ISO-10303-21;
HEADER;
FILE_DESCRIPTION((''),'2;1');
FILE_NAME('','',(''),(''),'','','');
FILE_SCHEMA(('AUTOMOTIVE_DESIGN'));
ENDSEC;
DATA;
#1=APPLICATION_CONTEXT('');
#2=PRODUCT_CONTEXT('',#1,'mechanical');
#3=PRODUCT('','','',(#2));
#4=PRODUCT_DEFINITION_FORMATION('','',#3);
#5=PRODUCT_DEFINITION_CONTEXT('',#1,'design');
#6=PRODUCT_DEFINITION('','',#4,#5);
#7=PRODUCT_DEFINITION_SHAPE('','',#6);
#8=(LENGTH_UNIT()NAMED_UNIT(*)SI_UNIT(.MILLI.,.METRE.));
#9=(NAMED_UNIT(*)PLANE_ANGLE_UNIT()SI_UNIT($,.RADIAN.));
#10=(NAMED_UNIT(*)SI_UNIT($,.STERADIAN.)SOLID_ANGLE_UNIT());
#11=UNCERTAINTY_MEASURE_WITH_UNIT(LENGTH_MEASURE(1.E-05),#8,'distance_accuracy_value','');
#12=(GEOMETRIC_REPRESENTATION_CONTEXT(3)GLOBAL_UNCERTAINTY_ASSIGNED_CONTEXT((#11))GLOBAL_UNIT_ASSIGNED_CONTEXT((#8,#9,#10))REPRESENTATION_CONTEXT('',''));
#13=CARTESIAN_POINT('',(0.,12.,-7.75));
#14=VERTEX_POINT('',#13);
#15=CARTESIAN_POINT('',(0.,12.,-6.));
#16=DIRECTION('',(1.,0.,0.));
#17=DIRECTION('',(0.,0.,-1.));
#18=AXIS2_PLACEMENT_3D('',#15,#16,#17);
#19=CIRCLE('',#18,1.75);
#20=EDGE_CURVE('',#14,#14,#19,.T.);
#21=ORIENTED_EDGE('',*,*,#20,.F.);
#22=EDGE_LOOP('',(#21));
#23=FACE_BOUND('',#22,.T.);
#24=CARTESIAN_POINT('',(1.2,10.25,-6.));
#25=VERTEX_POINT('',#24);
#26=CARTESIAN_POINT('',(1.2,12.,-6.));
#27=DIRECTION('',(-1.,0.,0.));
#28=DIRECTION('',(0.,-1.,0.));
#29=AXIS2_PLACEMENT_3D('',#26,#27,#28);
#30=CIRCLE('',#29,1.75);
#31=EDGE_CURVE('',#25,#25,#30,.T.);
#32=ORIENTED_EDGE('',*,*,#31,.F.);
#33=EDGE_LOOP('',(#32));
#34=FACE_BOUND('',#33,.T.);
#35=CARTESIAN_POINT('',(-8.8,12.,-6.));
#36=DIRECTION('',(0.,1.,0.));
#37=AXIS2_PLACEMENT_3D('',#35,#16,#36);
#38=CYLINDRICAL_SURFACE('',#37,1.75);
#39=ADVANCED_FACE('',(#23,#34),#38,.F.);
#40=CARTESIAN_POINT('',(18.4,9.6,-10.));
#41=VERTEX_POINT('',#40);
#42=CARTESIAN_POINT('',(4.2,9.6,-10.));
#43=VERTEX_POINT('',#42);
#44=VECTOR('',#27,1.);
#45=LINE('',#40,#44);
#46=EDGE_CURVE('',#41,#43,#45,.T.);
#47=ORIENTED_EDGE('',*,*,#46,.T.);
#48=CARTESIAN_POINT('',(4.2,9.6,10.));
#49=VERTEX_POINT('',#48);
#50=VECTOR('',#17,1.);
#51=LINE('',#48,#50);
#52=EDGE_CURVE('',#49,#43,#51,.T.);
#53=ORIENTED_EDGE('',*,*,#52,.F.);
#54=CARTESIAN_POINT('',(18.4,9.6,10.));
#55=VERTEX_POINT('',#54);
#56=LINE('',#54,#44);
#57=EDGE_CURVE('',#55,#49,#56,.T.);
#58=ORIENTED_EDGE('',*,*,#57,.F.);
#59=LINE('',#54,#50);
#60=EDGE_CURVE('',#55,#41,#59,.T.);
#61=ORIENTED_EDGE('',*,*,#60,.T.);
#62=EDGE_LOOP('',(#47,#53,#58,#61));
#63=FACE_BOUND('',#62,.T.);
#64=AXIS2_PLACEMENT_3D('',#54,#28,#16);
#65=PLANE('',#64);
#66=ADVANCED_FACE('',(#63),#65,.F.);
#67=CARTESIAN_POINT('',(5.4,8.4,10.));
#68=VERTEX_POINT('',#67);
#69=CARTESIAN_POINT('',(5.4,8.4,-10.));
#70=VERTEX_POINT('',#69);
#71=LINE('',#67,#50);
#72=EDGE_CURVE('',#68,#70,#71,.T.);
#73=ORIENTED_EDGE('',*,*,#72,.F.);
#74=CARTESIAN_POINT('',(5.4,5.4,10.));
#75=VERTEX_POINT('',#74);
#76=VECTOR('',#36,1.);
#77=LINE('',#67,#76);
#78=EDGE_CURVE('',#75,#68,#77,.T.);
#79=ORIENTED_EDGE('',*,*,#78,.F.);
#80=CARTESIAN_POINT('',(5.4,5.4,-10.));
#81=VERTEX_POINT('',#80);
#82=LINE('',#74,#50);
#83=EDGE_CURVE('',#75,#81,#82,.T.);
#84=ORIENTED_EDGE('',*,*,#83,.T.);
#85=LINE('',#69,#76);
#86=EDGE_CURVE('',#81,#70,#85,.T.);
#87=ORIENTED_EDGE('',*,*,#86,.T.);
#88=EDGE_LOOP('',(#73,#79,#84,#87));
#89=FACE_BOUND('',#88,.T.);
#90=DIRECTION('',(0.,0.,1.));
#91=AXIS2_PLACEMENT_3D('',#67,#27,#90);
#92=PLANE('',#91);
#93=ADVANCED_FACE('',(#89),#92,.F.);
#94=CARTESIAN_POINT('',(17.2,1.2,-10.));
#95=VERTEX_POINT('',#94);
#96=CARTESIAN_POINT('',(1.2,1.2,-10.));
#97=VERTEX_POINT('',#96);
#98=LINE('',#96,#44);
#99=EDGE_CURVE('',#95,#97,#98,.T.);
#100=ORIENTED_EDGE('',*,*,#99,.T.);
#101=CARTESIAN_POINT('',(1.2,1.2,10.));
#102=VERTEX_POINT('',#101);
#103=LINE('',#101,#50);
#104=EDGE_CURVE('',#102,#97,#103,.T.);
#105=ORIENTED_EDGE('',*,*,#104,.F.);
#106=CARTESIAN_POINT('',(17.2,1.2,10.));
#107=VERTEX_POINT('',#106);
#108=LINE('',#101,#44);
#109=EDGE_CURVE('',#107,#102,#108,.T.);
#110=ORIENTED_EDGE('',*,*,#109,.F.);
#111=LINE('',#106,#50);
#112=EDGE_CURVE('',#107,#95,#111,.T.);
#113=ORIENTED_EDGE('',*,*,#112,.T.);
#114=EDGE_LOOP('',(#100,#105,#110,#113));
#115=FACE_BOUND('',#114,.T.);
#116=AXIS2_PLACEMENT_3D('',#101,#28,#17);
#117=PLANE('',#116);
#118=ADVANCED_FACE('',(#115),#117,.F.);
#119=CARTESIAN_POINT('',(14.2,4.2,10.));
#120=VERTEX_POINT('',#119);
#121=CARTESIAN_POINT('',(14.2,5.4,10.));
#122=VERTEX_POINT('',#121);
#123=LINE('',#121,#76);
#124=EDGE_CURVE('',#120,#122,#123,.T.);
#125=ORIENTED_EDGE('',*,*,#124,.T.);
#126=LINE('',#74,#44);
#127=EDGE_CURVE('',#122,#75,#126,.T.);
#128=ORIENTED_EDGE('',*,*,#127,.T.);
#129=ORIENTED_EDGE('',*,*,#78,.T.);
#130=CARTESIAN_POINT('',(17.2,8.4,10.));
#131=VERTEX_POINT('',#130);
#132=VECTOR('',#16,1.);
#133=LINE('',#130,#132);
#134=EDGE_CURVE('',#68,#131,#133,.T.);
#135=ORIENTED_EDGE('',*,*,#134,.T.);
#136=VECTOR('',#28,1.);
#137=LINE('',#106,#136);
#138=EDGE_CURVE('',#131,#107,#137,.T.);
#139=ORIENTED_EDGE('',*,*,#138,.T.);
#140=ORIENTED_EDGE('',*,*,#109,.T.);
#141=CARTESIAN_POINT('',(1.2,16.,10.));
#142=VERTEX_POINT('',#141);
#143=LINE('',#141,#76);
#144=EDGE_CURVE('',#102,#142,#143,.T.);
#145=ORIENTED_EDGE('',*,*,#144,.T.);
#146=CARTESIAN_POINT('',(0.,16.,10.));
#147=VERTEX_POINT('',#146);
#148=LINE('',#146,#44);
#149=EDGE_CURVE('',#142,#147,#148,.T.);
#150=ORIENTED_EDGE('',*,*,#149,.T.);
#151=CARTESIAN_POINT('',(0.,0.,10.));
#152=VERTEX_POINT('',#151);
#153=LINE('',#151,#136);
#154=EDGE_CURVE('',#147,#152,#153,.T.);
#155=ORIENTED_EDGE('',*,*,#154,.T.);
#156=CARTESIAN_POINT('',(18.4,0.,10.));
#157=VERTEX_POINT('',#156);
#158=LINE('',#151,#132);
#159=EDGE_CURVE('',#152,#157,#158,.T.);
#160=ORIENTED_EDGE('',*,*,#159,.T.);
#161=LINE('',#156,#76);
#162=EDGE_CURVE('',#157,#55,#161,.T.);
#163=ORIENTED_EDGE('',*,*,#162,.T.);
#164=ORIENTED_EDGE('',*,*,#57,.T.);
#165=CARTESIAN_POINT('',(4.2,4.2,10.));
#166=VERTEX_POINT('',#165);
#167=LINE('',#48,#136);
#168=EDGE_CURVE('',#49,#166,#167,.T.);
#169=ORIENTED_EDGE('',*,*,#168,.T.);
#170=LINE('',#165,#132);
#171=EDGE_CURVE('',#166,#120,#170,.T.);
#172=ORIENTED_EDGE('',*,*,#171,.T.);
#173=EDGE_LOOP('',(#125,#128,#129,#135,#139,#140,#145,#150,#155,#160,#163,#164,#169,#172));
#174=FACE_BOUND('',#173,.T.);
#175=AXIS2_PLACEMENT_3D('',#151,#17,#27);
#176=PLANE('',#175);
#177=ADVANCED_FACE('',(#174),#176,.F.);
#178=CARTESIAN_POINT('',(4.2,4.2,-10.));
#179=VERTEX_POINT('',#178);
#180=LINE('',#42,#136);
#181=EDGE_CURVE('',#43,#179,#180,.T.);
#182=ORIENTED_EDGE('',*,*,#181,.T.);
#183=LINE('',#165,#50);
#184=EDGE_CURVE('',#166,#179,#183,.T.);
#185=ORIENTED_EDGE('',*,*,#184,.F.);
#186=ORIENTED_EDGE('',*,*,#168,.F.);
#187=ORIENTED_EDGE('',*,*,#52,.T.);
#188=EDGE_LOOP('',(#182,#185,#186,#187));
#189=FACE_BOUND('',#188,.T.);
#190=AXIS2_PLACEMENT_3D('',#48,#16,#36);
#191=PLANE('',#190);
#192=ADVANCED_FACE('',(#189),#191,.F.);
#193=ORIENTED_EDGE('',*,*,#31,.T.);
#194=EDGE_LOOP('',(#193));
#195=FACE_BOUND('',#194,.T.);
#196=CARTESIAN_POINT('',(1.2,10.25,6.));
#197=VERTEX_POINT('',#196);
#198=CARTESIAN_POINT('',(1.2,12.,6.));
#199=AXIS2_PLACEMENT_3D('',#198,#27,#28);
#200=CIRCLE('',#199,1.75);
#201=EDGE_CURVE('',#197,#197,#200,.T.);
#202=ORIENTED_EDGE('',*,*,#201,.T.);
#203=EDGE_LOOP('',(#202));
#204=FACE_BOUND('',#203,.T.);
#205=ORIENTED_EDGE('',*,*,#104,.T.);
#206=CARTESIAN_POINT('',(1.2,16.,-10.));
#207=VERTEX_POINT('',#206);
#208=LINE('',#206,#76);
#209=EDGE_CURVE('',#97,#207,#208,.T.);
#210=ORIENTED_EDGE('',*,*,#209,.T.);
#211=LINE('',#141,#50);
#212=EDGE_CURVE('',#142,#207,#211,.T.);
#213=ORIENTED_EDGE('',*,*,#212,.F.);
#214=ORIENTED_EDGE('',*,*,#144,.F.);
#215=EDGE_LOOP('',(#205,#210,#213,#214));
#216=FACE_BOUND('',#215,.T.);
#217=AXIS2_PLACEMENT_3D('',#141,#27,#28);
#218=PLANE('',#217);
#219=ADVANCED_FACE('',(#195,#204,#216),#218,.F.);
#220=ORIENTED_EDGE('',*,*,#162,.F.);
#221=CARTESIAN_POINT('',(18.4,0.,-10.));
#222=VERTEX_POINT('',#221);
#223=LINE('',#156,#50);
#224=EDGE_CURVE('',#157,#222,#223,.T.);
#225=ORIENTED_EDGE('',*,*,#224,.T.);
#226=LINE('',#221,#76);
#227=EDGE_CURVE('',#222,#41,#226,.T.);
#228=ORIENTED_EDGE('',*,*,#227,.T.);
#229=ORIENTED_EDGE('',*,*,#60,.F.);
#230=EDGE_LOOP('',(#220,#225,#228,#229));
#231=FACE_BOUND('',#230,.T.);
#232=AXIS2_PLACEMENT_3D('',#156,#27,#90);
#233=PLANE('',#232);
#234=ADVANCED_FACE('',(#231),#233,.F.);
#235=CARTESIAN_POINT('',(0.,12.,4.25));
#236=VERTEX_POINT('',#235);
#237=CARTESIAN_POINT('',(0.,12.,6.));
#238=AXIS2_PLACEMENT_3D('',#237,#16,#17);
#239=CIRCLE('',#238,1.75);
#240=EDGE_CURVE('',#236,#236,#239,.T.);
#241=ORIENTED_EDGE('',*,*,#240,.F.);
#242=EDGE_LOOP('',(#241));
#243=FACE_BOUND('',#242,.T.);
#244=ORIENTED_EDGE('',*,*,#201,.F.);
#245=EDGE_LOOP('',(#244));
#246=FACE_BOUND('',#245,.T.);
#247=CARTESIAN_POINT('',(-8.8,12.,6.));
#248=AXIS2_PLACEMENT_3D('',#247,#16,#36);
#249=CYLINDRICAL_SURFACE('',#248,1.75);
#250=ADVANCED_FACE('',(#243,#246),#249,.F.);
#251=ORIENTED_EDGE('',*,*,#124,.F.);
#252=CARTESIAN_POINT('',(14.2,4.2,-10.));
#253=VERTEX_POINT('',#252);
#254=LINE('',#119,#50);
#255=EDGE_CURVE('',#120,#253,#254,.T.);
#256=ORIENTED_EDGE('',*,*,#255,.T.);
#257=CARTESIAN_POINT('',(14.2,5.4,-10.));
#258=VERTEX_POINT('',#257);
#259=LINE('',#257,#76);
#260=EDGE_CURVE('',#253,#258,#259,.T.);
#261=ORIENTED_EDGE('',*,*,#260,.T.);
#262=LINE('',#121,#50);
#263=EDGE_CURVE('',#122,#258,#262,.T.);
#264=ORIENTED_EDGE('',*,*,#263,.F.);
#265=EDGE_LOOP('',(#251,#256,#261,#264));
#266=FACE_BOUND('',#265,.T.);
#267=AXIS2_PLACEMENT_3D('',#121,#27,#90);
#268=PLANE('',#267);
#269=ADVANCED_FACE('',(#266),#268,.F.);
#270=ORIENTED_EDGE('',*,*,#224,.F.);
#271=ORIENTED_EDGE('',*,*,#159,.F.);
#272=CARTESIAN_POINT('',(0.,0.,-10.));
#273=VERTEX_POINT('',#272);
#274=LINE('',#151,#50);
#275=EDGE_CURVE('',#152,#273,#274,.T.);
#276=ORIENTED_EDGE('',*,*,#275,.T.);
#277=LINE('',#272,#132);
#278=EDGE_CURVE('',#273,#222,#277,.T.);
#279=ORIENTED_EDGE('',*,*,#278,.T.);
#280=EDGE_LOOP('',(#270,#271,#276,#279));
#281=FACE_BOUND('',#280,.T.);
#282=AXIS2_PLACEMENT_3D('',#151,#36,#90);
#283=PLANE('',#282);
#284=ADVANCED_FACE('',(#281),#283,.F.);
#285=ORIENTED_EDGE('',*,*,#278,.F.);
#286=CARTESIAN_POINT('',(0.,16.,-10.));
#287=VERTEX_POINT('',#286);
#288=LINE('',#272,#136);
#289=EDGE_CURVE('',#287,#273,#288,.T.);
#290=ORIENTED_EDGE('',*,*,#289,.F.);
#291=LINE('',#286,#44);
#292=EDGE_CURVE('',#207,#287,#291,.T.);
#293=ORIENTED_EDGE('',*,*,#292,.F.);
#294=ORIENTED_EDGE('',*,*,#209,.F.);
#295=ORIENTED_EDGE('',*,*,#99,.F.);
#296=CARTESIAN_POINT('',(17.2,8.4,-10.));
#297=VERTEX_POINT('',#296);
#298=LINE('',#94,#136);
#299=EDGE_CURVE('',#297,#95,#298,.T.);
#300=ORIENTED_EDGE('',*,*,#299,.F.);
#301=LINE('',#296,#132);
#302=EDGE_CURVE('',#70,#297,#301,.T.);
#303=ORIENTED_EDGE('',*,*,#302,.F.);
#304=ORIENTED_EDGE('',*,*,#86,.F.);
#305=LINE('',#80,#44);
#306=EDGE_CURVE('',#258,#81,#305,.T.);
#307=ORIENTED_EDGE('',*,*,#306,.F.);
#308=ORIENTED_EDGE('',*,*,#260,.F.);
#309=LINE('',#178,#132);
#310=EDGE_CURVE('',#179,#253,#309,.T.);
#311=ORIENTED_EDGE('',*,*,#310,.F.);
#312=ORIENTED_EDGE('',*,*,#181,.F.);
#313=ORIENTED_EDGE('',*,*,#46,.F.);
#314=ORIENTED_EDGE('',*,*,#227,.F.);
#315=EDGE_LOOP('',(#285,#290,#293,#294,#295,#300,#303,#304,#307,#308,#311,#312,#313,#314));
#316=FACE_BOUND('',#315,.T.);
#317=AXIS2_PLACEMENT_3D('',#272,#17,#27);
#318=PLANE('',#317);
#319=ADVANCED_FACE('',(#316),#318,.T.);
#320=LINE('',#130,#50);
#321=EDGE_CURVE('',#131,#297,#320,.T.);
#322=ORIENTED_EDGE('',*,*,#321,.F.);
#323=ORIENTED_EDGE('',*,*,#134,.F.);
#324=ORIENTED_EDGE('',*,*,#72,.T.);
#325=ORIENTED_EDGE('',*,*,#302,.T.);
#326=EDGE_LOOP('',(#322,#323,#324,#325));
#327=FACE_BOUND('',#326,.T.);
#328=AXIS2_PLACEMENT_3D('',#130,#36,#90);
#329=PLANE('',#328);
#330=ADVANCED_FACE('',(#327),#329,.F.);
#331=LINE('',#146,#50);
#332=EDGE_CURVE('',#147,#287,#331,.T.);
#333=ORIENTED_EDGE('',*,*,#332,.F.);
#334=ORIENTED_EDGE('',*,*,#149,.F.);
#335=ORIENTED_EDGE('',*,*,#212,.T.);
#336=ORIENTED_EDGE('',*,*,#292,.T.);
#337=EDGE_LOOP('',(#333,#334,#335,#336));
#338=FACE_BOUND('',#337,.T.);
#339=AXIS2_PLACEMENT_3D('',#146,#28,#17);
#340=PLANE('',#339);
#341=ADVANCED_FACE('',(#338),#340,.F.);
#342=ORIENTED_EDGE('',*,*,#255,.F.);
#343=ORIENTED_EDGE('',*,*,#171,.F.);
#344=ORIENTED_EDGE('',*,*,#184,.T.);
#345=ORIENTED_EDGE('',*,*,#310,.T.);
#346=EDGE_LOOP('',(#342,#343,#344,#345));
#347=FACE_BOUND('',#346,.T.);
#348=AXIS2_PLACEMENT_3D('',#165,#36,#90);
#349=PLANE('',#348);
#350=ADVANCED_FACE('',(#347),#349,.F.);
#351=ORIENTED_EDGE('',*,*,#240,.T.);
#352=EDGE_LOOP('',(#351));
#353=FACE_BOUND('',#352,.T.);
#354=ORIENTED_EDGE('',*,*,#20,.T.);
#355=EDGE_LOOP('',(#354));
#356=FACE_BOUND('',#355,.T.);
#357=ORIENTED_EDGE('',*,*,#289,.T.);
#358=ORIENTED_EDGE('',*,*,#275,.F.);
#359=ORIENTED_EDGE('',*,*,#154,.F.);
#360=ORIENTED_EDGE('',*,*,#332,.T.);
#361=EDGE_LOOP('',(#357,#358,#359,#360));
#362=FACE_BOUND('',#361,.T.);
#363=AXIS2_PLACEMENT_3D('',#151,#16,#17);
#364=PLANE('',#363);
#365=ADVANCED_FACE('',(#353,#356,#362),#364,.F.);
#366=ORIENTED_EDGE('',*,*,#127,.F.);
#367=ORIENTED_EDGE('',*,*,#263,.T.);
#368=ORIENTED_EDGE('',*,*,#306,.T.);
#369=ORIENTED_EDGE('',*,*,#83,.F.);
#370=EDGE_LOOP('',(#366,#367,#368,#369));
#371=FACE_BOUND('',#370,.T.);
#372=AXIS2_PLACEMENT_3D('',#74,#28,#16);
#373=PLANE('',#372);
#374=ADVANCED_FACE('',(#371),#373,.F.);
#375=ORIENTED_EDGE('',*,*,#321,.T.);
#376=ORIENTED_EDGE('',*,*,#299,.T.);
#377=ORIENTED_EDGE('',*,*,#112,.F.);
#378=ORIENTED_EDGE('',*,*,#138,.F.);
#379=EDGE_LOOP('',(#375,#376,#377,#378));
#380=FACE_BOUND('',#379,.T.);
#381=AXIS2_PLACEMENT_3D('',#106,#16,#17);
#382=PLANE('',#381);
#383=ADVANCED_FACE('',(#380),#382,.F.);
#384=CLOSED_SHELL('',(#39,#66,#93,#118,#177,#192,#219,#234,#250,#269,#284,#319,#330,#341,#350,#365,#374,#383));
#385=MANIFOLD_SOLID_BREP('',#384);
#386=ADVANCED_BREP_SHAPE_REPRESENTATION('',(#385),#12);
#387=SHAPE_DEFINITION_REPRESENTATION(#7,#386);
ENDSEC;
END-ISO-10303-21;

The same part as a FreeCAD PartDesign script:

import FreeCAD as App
import Part
import Sketcher
Q = App.Units.Quantity

doc = App.newDocument("Part")
body = doc.addObject("PartDesign::Body", "Body")

# Sketch on XY plane
sketch1 = body.newObject("Sketcher::SketchObject", "Sketch")
sketch1.AttachmentSupport = (doc.getObject("XY_Plane"), [""])
sketch1.MapMode = "FlatFace"
sketch1.addGeometry([
    Part.LineSegment(App.Vector(0, 0, 0), App.Vector(18.4, 0, 0)),  # 0
    Part.LineSegment(App.Vector(18.4, 0, 0), App.Vector(18.4, 9.6, 0)),  # 1
    Part.LineSegment(App.Vector(18.4, 9.6, 0), App.Vector(4.2, 9.6, 0)),  # 2
    Part.LineSegment(App.Vector(4.2, 9.6, 0), App.Vector(4.2, 4.2, 0)),  # 3
    Part.LineSegment(App.Vector(4.2, 4.2, 0), App.Vector(14.2, 4.2, 0)),  # 4
    Part.LineSegment(App.Vector(14.2, 4.2, 0), App.Vector(14.2, 5.4, 0)),  # 5
    Part.LineSegment(App.Vector(14.2, 5.4, 0), App.Vector(5.4, 5.4, 0)),  # 6
    Part.LineSegment(App.Vector(5.4, 5.4, 0), App.Vector(5.4, 8.4, 0)),  # 7
    Part.LineSegment(App.Vector(5.4, 8.4, 0), App.Vector(17.2, 8.4, 0)),  # 8
    Part.LineSegment(App.Vector(17.2, 8.4, 0), App.Vector(17.2, 1.2, 0)),  # 9
    Part.LineSegment(App.Vector(17.2, 1.2, 0), App.Vector(1.2, 1.2, 0)),  # 10
    Part.LineSegment(App.Vector(1.2, 1.2, 0), App.Vector(1.2, 16, 0)),  # 11
    Part.LineSegment(App.Vector(1.2, 16, 0), App.Vector(0, 16, 0)),  # 12
    Part.LineSegment(App.Vector(0, 16, 0), App.Vector(0, 0, 0)),  # 13
], False)
sketch1.addConstraint([
    Sketcher.Constraint("Coincident", 0, 2, 1, 1),
    Sketcher.Constraint("Coincident", 1, 2, 2, 1),
    Sketcher.Constraint("Coincident", 2, 2, 3, 1),
    Sketcher.Constraint("Coincident", 3, 2, 4, 1),
    Sketcher.Constraint("Coincident", 4, 2, 5, 1),
    Sketcher.Constraint("Coincident", 5, 2, 6, 1),
    Sketcher.Constraint("Coincident", 6, 2, 7, 1),
    Sketcher.Constraint("Coincident", 7, 2, 8, 1),
    Sketcher.Constraint("Coincident", 8, 2, 9, 1),
    Sketcher.Constraint("Coincident", 9, 2, 10, 1),
    Sketcher.Constraint("Coincident", 10, 2, 11, 1),
    Sketcher.Constraint("Coincident", 11, 2, 12, 1),
    Sketcher.Constraint("Coincident", 12, 2, 13, 1),
    Sketcher.Constraint("Coincident", 13, 2, 0, 1),
    Sketcher.Constraint("Horizontal", 0),
    Sketcher.Constraint("Vertical", 1),
    Sketcher.Constraint("Horizontal", 2),
    Sketcher.Constraint("Vertical", 3),
    Sketcher.Constraint("Horizontal", 4),
    Sketcher.Constraint("Vertical", 5),
    Sketcher.Constraint("Horizontal", 6),
    Sketcher.Constraint("Vertical", 7),
    Sketcher.Constraint("Horizontal", 8),
    Sketcher.Constraint("Vertical", 9),
    Sketcher.Constraint("Horizontal", 10),
    Sketcher.Constraint("Vertical", 11),
    Sketcher.Constraint("Horizontal", 12),
    Sketcher.Constraint("Vertical", 13),
    Sketcher.Constraint("Coincident", 13, 2, -1, 1),
    Sketcher.Constraint("Equal", 12, 5),
    Sketcher.Constraint("Equal", 10, 13),
    Sketcher.Constraint("DistanceX", 4, 1, 4, 2, Q("10 mm")),
    Sketcher.Constraint("DistanceX", 10, 2, 10, 1, Q("16 mm")),
    Sketcher.Constraint("DistanceY", 7, 1, 7, 2, Q("3 mm")),
    Sketcher.Constraint("DistanceX", 0, 1, 0, 2, Q("18.4 mm")),
    Sketcher.Constraint("DistanceX", 2, 2, 2, 1, Q("14.2 mm")),
    Sketcher.Constraint("DistanceX", 6, 2, 6, 1, Q("8.8 mm")),
    Sketcher.Constraint("DistanceX", 8, 1, 8, 2, Q("11.8 mm")),
    Sketcher.Constraint("DistanceY", 1, 1, 1, 2, Q("9.6 mm")),
    Sketcher.Constraint("DistanceY", 3, 2, 3, 1, Q("5.4 mm")),
    Sketcher.Constraint("DistanceY", 9, 2, 9, 1, Q("7.2 mm")),
])
pad1 = body.newObject("PartDesign::Pad", "Pad")
pad1.Profile = sketch1
pad1.Length = 20
pad1.Midplane = True

# Sketch on YZ plane
sketch2 = body.newObject("Sketcher::SketchObject", "Sketch001")
sketch2.AttachmentSupport = (doc.getObject("YZ_Plane"), [""])
sketch2.MapMode = "FlatFace"
sketch2.AttachmentOffset = App.Placement(App.Vector(0, 0, 1.2), App.Rotation())
sketch2.addGeometry([
    Part.Circle(App.Vector(12, 6, 0), App.Vector(0, 0, 1), 1.8),
    Part.Circle(App.Vector(12, -6, 0), App.Vector(0, 0, 1), 1.8),
], False)
sketch2.addConstraint([
    Sketcher.Constraint("Equal", 0, 1),
    Sketcher.Constraint("Symmetric", 0, 3, 1, 3, -1),
    Sketcher.Constraint("Diameter", 0, Q("3.5 mm")),
    Sketcher.Constraint("DistanceX", -1, 1, 0, 3, Q("12 mm")),
    Sketcher.Constraint("DistanceY", -1, 1, 0, 3, Q("6 mm")),
])
pocket1 = body.newObject("PartDesign::Pocket", "Pocket")
pocket1.Profile = sketch2
pocket1.Length = 20
pocket1.Midplane = True

doc.recompute()
